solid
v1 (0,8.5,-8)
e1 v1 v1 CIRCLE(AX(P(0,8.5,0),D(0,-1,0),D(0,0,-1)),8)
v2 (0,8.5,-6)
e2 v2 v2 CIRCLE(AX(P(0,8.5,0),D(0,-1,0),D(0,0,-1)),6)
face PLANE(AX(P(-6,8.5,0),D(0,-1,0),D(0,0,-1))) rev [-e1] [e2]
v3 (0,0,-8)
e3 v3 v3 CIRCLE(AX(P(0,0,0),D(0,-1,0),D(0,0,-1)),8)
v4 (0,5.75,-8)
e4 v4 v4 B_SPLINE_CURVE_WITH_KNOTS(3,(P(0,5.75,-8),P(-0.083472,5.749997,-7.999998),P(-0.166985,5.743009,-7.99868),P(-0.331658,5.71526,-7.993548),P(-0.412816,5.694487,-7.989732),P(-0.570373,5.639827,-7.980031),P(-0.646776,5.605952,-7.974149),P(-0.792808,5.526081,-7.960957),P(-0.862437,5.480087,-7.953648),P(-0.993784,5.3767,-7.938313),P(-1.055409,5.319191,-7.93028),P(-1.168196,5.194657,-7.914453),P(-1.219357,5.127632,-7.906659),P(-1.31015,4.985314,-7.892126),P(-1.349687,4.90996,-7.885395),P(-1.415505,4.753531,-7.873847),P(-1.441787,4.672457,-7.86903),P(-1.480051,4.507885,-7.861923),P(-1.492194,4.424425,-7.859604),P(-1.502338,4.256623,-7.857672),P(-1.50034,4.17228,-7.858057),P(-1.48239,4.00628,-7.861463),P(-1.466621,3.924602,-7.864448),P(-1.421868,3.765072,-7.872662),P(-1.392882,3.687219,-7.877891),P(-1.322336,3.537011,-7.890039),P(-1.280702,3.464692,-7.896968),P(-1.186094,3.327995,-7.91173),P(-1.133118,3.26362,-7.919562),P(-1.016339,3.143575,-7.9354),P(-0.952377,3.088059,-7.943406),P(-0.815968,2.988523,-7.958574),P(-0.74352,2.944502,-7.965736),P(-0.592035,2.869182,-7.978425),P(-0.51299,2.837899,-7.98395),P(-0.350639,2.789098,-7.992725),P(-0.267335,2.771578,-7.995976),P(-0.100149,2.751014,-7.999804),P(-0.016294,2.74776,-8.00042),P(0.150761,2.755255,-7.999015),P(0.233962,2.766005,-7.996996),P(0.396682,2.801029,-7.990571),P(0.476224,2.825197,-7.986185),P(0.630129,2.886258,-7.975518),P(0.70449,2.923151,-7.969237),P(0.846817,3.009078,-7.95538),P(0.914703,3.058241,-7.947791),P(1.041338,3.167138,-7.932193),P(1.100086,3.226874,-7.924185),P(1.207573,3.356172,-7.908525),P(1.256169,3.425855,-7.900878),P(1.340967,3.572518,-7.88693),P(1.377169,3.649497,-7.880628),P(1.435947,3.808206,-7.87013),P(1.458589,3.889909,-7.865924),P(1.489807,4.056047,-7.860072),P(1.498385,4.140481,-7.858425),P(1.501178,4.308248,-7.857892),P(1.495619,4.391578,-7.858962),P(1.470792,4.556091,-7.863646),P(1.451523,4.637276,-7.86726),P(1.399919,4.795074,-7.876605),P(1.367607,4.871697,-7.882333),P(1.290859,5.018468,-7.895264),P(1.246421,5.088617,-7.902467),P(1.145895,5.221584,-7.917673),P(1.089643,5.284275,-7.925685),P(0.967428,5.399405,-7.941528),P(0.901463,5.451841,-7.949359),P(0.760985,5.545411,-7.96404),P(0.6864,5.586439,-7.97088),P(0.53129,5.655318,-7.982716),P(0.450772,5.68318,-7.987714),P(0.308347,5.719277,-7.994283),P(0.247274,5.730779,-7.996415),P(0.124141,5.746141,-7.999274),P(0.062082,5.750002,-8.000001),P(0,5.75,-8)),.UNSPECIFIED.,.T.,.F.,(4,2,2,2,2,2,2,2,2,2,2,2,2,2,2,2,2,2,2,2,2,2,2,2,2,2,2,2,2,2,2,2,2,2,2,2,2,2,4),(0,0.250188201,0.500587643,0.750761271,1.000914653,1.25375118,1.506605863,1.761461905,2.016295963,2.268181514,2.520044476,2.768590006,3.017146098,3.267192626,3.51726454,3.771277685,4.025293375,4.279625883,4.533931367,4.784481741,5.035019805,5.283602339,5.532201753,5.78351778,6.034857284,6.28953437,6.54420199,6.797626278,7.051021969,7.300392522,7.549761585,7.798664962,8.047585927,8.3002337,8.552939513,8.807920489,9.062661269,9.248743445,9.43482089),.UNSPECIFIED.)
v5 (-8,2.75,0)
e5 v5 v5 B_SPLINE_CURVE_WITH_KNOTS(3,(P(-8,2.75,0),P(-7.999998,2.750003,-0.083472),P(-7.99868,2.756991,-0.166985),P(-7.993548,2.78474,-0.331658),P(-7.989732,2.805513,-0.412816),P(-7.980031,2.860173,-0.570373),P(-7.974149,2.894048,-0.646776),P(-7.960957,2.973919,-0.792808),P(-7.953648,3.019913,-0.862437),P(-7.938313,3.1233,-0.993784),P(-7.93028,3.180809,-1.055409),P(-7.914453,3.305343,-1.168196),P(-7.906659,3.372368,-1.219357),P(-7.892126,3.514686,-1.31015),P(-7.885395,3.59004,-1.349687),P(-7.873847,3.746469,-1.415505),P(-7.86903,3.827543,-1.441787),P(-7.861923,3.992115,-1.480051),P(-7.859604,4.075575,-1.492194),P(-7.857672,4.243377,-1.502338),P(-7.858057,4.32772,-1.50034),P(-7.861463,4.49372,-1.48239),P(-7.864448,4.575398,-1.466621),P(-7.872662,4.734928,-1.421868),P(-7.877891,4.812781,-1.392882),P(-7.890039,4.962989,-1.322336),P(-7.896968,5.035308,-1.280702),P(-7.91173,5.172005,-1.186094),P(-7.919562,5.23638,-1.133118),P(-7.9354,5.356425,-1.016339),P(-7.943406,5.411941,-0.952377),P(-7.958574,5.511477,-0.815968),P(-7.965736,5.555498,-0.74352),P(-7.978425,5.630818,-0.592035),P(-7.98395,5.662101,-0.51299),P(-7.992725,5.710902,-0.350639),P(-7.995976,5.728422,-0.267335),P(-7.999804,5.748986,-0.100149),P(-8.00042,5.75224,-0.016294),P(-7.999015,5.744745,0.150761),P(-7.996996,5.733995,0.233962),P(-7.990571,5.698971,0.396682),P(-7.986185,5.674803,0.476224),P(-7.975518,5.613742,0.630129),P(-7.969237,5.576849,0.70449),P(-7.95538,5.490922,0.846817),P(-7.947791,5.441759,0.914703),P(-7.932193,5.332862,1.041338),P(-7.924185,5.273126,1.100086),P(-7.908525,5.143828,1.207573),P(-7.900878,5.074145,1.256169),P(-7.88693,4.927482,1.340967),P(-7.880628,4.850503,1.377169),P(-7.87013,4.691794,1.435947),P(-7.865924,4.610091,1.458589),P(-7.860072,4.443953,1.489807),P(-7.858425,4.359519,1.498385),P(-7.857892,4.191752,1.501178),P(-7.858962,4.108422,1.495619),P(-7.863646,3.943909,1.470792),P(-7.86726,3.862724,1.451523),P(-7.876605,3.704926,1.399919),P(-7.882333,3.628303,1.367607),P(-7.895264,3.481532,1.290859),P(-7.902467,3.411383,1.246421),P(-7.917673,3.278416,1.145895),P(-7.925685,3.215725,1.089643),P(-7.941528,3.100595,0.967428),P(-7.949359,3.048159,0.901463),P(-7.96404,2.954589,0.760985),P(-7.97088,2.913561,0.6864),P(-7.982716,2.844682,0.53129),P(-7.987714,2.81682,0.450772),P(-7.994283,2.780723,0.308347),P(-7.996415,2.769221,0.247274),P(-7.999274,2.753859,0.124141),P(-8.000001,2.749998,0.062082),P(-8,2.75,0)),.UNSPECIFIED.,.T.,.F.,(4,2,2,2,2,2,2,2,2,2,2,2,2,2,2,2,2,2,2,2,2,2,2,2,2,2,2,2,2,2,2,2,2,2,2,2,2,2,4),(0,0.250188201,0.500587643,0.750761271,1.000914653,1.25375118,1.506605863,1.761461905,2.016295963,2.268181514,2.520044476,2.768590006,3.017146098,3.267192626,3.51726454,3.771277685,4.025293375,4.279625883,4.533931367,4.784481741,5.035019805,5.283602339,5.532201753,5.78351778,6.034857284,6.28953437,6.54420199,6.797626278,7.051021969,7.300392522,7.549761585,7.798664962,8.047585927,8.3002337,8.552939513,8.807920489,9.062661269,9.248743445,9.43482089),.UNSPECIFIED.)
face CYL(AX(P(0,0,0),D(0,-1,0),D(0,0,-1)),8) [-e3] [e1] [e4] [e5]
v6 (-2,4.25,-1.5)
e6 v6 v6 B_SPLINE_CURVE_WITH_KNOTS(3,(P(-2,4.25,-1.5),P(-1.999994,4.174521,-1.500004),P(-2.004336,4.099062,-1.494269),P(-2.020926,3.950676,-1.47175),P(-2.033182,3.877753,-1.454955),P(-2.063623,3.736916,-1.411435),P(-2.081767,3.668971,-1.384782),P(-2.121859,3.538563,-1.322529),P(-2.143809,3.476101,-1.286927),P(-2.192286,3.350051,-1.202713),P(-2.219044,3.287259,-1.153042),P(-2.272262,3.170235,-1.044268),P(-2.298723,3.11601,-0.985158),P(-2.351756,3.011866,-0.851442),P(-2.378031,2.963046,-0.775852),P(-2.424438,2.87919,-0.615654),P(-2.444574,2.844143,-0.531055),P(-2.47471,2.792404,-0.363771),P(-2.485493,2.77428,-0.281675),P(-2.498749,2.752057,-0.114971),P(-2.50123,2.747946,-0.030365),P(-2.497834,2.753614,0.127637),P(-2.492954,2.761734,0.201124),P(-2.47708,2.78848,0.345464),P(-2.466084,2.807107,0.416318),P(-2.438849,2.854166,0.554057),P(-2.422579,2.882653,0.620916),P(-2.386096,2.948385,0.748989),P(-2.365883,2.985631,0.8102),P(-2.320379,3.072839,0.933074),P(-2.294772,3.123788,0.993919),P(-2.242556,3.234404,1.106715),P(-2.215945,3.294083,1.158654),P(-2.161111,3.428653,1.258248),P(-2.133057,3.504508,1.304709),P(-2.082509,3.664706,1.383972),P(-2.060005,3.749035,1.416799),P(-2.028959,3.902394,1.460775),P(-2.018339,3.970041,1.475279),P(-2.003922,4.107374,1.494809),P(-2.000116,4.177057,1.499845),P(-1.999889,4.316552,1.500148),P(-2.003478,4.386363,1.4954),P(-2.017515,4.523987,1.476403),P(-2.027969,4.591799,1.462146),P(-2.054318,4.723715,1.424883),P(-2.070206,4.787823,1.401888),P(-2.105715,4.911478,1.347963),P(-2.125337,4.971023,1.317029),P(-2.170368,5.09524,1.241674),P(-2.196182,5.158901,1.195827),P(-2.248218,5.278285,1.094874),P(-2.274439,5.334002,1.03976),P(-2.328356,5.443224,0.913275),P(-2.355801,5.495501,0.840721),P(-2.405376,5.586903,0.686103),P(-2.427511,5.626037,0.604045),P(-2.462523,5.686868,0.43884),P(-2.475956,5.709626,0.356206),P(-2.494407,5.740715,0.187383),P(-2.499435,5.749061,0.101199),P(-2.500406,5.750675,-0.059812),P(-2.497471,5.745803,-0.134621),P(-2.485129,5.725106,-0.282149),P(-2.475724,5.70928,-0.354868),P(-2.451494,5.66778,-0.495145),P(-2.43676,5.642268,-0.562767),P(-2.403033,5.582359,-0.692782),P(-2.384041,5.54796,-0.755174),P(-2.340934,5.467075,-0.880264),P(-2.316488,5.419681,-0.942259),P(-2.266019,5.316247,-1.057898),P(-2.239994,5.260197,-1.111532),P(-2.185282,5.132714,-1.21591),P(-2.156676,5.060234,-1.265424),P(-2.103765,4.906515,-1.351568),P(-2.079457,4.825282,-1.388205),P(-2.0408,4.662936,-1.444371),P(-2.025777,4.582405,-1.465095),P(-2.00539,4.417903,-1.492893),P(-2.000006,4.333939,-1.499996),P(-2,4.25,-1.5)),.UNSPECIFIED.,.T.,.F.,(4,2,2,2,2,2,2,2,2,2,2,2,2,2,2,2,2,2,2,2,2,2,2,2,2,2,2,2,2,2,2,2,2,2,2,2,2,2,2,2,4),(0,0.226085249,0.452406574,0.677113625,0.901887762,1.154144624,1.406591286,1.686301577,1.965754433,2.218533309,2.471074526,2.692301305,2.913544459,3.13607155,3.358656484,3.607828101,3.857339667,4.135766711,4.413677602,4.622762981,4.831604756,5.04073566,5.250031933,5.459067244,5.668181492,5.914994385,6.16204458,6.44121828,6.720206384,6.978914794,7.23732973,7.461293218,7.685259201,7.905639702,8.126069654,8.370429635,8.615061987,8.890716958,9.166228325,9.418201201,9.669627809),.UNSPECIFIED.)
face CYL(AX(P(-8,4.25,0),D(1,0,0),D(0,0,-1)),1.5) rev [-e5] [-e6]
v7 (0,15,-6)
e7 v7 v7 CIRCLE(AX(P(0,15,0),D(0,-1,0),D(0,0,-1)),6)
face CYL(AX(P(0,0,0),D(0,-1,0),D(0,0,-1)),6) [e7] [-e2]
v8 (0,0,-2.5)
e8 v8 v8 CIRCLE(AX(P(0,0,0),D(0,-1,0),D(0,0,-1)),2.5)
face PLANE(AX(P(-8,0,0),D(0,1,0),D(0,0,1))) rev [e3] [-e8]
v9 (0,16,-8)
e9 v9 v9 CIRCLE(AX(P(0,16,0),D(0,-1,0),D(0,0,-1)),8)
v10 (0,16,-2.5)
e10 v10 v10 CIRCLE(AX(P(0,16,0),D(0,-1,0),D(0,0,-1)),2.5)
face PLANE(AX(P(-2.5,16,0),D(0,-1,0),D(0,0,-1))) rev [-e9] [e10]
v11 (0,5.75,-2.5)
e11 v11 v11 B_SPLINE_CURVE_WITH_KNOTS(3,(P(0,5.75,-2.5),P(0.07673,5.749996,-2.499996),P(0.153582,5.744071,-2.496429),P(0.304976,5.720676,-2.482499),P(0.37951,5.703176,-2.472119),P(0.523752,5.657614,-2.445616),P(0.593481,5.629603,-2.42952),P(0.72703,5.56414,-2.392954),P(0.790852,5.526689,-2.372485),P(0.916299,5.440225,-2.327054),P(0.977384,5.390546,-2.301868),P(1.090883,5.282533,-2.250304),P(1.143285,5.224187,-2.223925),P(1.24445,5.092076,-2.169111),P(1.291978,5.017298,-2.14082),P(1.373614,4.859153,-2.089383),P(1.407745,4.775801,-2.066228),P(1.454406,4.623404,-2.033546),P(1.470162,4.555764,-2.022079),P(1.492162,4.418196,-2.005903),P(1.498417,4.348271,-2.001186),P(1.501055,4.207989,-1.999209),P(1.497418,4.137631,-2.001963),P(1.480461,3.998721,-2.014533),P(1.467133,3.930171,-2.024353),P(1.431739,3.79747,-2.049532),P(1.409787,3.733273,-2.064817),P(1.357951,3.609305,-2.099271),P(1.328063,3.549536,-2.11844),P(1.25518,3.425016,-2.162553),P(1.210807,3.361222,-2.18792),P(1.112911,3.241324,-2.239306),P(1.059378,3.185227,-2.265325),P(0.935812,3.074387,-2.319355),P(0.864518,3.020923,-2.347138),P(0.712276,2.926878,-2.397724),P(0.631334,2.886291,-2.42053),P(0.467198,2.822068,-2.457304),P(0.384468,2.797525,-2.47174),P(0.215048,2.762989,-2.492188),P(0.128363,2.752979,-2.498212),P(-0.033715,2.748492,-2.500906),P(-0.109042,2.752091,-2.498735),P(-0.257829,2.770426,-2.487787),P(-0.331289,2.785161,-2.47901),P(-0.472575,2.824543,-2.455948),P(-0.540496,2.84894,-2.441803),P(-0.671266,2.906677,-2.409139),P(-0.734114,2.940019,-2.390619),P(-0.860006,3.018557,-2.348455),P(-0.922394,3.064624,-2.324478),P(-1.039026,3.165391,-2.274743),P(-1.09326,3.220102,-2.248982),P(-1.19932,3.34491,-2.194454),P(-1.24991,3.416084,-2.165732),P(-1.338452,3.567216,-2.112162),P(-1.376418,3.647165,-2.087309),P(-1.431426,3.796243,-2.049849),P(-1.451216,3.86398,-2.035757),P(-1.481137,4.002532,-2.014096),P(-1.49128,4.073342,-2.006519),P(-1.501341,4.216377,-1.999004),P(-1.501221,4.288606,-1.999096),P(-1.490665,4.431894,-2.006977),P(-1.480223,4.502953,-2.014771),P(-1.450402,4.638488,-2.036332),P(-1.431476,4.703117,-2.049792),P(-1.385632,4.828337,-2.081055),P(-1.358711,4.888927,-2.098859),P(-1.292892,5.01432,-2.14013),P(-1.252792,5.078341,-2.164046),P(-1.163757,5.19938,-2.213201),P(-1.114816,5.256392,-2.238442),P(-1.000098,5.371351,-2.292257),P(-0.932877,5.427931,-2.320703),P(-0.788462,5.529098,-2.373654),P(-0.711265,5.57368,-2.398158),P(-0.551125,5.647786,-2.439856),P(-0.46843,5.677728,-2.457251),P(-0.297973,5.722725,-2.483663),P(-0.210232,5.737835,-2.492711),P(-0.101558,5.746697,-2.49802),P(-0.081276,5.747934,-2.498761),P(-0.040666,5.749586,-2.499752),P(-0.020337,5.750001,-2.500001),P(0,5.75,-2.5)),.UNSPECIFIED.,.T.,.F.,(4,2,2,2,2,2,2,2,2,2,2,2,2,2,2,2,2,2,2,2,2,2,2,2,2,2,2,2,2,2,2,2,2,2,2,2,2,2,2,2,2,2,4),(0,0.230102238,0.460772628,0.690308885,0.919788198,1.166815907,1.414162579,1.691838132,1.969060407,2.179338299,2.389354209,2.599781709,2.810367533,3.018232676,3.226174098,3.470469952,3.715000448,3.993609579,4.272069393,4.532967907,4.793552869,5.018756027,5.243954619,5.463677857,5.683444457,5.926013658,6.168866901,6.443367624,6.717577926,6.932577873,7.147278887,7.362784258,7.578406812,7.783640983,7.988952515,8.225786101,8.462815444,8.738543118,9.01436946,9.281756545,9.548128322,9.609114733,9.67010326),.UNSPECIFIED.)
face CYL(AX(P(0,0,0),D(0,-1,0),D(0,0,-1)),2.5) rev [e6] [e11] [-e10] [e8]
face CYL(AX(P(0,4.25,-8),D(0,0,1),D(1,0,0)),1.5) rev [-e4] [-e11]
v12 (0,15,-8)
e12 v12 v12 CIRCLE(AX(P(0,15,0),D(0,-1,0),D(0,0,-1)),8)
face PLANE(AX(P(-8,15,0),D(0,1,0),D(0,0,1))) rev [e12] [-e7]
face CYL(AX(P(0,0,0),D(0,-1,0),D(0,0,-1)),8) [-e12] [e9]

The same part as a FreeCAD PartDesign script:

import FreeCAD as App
import Part
import Sketcher
from FreeCAD import Vector


def add_polygon(sketch, points):
    """Adds a closed chain of lines whose ends are joined by coincident constraints."""
    first, n = sketch.GeometryCount, len(points)
    for a, b in zip(points, points[1:] + points[:1]):
        sketch.addGeometry(Part.LineSegment(App.Vector(*a, 0), App.Vector(*b, 0)), False)
    for i in range(n):
        sketch.addConstraint(Sketcher.Constraint("Coincident", first + i, 2, first + (i + 1) % n, 1))

doc = App.newDocument("Part")
body = doc.addObject("PartDesign::Body", "Body")

# Sketch on XY plane
sketch1 = body.newObject("Sketcher::SketchObject", "Sketch")
sketch1.AttachmentSupport = (doc.getObject("XY_Plane"), [""])
sketch1.MapMode = "FlatFace"
add_polygon(sketch1, [(-2.5, 0), (-2.5, 16), (-8, 16), (-8, 15), (-6, 15), (-6, 8.5), (-8, 8.5), (-8, 0)])  # lines 0-7
sketch1.addConstraint(Sketcher.Constraint("Vertical", 0))
sketch1.addConstraint(Sketcher.Constraint("Horizontal", 1))
sketch1.addConstraint(Sketcher.Constraint("Vertical", 2))
sketch1.addConstraint(Sketcher.Constraint("Horizontal", 3))
sketch1.addConstraint(Sketcher.Constraint("Vertical", 4))
sketch1.addConstraint(Sketcher.Constraint("Horizontal", 5))
sketch1.addConstraint(Sketcher.Constraint("Vertical", 6))
sketch1.addConstraint(Sketcher.Constraint("Horizontal", 7))
sketch1.addConstraint(Sketcher.Constraint("PointOnObject", 6, 2, -1))
sketch1.addConstraint(Sketcher.Constraint("Vertical", 2, 2, 5, 2))
sketch1.addConstraint(Sketcher.Constraint("DistanceX", 3, 1, 3, 2, 2.0))
sketch1.addConstraint(Sketcher.Constraint("DistanceY", 0, 1, 0, 2, 16.0))
sketch1.addConstraint(Sketcher.Constraint("DistanceY", 2, 2, 2, 1, 1.0))
sketch1.addConstraint(Sketcher.Constraint("DistanceX", 1, 2, 1, 1, 5.5))
sketch1.addConstraint(Sketcher.Constraint("DistanceY", 4, 2, 4, 1, 6.5))
sketch1.addConstraint(Sketcher.Constraint("DistanceX", 1, 2, -1, 1, 8.0))
revolution = body.newObject("PartDesign::Revolution", "Revolution")
revolution.Profile = sketch1
revolution.ReferenceAxis = (sketch1, ["V_Axis"])
revolution.Angle = 360

# Sketch on YZ plane
sketch2 = body.newObject("Sketcher::SketchObject", "Sketch001")
sketch2.AttachmentSupport = (doc.getObject("YZ_Plane"), [""])
sketch2.MapMode = "FlatFace"
sketch2.addGeometry(Part.Circle(Vector(4.25, 0, 0), Vector(0, 0, 1), 1.5), False)
sketch2.addConstraint(Sketcher.Constraint("PointOnObject", 0, 3, -1))
sketch2.addConstraint(Sketcher.Constraint("Diameter", 0, 3.0))
sketch2.addConstraint(Sketcher.Constraint("DistanceX", -1, 1, 0, 3, 4.25))
pocket1 = body.newObject("PartDesign::Pocket", "Pocket")
pocket1.Profile = sketch2
pocket1.Type = "ThroughAll"

# Sketch on XY plane
sketch3 = body.newObject("Sketcher::SketchObject", "Sketch002")
sketch3.AttachmentSupport = (doc.getObject("XY_Plane"), [""])
sketch3.MapMode = "FlatFace"
sketch3.addGeometry(Part.Circle(Vector(0, 4.25, 0), Vector(0, 0, 1), 1.5), False)
sketch3.addConstraint(Sketcher.Constraint("PointOnObject", 0, 3, -2))
sketch3.addConstraint(Sketcher.Constraint("Diameter", 0, 3.0))
sketch3.addConstraint(Sketcher.Constraint("DistanceY", -1, 1, 0, 3, 4.25))
pocket2 = body.newObject("PartDesign::Pocket", "Pocket001")
pocket2.Profile = sketch3
pocket2.Type = "ThroughAll"

doc.recompute()
